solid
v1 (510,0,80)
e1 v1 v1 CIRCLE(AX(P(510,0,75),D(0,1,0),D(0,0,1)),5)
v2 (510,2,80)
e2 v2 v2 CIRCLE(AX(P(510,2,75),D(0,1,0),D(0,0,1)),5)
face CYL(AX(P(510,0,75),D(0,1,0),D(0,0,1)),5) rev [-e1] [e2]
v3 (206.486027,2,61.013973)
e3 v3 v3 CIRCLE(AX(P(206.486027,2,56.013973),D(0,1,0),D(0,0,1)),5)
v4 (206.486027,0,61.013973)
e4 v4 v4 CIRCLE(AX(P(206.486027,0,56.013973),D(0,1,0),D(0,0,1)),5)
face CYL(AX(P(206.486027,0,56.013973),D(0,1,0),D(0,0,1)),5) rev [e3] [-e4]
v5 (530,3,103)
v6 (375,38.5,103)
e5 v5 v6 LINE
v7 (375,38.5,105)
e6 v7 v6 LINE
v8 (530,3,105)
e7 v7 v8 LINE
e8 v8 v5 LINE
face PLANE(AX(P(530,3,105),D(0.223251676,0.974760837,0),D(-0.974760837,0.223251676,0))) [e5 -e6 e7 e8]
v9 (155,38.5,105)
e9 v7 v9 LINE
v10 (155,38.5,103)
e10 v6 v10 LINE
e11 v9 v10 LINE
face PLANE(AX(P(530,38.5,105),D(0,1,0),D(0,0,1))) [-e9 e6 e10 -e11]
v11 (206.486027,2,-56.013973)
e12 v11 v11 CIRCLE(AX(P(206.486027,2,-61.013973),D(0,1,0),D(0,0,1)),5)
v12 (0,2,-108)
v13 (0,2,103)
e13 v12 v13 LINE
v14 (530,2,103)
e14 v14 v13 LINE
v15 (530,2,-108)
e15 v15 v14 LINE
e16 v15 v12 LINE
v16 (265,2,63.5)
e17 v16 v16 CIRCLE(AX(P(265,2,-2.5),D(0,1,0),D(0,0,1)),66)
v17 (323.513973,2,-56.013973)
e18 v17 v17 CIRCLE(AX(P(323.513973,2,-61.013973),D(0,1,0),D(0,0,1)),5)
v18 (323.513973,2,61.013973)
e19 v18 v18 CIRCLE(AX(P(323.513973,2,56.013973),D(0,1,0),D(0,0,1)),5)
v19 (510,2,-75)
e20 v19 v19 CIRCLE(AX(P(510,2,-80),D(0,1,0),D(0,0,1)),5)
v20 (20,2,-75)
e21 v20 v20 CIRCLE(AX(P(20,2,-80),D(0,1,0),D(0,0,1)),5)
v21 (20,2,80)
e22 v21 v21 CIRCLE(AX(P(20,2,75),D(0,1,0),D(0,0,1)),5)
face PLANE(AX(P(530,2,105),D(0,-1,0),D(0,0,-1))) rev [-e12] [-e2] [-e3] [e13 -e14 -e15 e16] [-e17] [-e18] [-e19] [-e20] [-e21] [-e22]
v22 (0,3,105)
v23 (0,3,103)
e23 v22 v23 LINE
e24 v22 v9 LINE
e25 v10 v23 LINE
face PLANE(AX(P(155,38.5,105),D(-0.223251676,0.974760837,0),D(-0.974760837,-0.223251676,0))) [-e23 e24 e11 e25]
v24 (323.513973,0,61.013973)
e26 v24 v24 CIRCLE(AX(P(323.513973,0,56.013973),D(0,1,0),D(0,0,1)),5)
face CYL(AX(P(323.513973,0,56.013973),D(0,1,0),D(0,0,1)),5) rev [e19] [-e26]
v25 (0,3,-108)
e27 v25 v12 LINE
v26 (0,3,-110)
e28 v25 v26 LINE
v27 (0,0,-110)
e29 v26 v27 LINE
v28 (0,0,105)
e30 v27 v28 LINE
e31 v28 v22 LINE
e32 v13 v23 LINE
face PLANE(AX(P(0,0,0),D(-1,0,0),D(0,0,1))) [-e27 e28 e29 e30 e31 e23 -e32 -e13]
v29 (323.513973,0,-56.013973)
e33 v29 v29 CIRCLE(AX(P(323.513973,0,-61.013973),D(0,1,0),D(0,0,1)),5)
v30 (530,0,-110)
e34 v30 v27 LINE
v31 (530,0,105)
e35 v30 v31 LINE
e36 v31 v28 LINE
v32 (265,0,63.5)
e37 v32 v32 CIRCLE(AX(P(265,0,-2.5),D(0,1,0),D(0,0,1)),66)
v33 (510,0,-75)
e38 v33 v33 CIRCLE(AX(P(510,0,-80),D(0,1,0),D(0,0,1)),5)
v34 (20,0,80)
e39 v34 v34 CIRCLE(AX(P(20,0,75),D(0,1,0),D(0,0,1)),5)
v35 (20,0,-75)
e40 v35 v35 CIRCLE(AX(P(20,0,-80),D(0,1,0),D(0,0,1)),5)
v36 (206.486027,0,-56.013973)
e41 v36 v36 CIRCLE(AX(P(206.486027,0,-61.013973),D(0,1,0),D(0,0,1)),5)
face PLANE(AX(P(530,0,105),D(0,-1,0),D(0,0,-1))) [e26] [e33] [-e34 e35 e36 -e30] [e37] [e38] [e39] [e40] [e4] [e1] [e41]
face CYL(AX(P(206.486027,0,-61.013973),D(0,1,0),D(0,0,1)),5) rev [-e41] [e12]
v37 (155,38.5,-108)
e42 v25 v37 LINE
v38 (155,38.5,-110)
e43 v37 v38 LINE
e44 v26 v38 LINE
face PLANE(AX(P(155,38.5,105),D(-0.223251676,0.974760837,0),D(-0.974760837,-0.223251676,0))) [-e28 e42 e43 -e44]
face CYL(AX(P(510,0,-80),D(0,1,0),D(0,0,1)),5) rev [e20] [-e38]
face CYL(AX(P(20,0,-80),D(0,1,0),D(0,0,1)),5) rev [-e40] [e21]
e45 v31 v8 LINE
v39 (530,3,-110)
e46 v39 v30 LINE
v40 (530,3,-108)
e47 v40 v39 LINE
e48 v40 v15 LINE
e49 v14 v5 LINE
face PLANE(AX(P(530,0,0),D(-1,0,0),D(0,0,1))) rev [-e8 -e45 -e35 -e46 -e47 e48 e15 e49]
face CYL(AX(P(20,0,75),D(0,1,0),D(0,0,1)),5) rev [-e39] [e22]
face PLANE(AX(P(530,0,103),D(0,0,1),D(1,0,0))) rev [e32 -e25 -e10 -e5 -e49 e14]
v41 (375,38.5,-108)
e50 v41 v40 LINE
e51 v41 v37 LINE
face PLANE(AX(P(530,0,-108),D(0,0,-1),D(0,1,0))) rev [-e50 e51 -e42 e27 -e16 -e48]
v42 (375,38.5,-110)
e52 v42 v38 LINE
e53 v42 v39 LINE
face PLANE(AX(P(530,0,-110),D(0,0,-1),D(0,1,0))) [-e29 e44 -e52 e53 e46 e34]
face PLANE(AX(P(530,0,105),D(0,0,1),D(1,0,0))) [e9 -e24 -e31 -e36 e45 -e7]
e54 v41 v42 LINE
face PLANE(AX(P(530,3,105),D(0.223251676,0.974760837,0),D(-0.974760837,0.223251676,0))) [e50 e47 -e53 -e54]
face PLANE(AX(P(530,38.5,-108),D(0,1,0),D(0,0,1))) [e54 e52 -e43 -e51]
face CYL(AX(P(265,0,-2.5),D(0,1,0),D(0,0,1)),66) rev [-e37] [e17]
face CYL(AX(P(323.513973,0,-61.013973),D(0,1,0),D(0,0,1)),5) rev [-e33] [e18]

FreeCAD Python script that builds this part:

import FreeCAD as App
import Part
import Sketcher

V = App.Vector
Q = App.Units.Quantity

doc = App.newDocument("Part")
params = doc.addObject("Spreadsheet::Sheet", "Params")
for row, (alias, value) in enumerate([
    ("sketch1_height", "215 mm"),
    ("sketch1_height2", "2 mm"),
    ("sketch1_width", "38.5 mm"),
    ("sketch1_width2", "36.5 mm"),
    ("pad1_length", "530 mm"),
    ("sketch2_width", "530 mm"),
    ("sketch2_width2", "220 mm"),
    ("sketch2_height", "3 mm"),
    ("sketch3_diameter", "10 mm"),
    ("sketch3_diameter2", "132 mm"),
], start=1):
    params.set(f"A{row}", alias)
    params.set(f"B{row}", "=" + value)
    params.setAlias(f"B{row}", alias)

body = doc.addObject("PartDesign::Body", "Body")

# Sketch on YZ plane
sketch1 = body.newObject("Sketcher::SketchObject", "Sketch")
sketch1.AttachmentSupport = (doc.getObject("YZ_Plane"), [""])
sketch1.MapMode = "FlatFace"
sketch1.addGeometry([
    Part.LineSegment(V(38.5, 105, 0), V(0, 105, 0)),  # 0
    Part.LineSegment(V(0, 105, 0), V(0, -110, 0)),  # 1
    Part.LineSegment(V(0, -110, 0), V(38.5, -110, 0)),  # 2
    Part.LineSegment(V(38.5, -110, 0), V(38.5, -108, 0)),  # 3
    Part.LineSegment(V(38.5, -108, 0), V(2, -108, 0)),  # 4
    Part.LineSegment(V(2, -108, 0), V(2, 103, 0)),  # 5
    Part.LineSegment(V(2, 103, 0), V(38.5, 103, 0)),  # 6
    Part.LineSegment(V(38.5, 103, 0), V(38.5, 105, 0)),  # 7
], False)
sketch1.addConstraint([
    Sketcher.Constraint("Coincident", 0, 2, 1, 1),
    Sketcher.Constraint("Coincident", 1, 2, 2, 1),
    Sketcher.Constraint("Coincident", 2, 2, 3, 1),
    Sketcher.Constraint("Coincident", 3, 2, 4, 1),
    Sketcher.Constraint("Coincident", 4, 2, 5, 1),
    Sketcher.Constraint("Coincident", 5, 2, 6, 1),
    Sketcher.Constraint("Coincident", 6, 2, 7, 1),
    Sketcher.Constraint("Coincident", 7, 2, 0, 1),
    Sketcher.Constraint("Horizontal", 0),
    Sketcher.Constraint("Vertical", 1),
    Sketcher.Constraint("Horizontal", 2),
    Sketcher.Constraint("Vertical", 3),
    Sketcher.Constraint("Horizontal", 4),
    Sketcher.Constraint("Vertical", 5),
    Sketcher.Constraint("Horizontal", 6),
    Sketcher.Constraint("Vertical", 7),
    Sketcher.Constraint("PointOnObject", 0, 2, -2),
    Sketcher.Constraint("Vertical", 3, 2, 6, 2),
    Sketcher.Constraint("Equal", 3, 7),
    Sketcher.Constraint("DistanceY", 1, 2, 1, 1, Q("215 mm")),
    Sketcher.Constraint("DistanceY", 3, 1, 3, 2, Q("2 mm")),
    Sketcher.Constraint("DistanceX", 0, 2, 0, 1, Q("38.5 mm")),
    Sketcher.Constraint("DistanceX", 4, 2, 4, 1, Q("36.5 mm")),
    Sketcher.Constraint("DistanceY", -1, 1, 0, 2, Q("105 mm")),
])
sketch1.setExpression("Constraints[19]", "Params.sketch1_height")
sketch1.setExpression("Constraints[20]", "Params.sketch1_height2")
sketch1.setExpression("Constraints[21]", "Params.sketch1_width")
sketch1.setExpression("Constraints[22]", "Params.sketch1_width2")
pad1 = body.newObject("PartDesign::Pad", "Pad")
pad1.Profile = sketch1
pad1.setExpression("Length", "Params.pad1_length")

# Sketch on XY plane
sketch2 = body.newObject("Sketcher::SketchObject", "Sketch001")
sketch2.AttachmentSupport = (doc.getObject("XY_Plane"), [""])
sketch2.MapMode = "FlatFace"
sketch2.AttachmentOffset = App.Placement(V(0, 0, -110), App.Rotation())
sketch2.addGeometry([
    Part.LineSegment(V(588.324, 96.824, 0), V(588.324, -58.324, 0)),  # 0
    Part.LineSegment(V(588.324, -58.324, 0), V(-58.324, -58.324, 0)),  # 1
    Part.LineSegment(V(-58.324, -58.324, 0), V(-58.324, 96.824, 0)),  # 2
    Part.LineSegment(V(-58.324, 96.824, 0), V(588.324, 96.824, 0)),  # 3
    Part.LineSegment(V(0, 0, 0), V(530, 0, 0)),  # 4
    Part.LineSegment(V(530, 0, 0), V(530, 3, 0)),  # 5
    Part.LineSegment(V(530, 3, 0), V(375, 38.5, 0)),  # 6
    Part.LineSegment(V(375, 38.5, 0), V(155, 38.5, 0)),  # 7
    Part.LineSegment(V(155, 38.5, 0), V(0, 3, 0)),  # 8
    Part.LineSegment(V(0, 3, 0), V(0, 0, 0)),  # 9
], False)
sketch2.addConstraint([
    Sketcher.Constraint("Coincident", 0, 2, 1, 1),
    Sketcher.Constraint("Coincident", 1, 2, 2, 1),
    Sketcher.Constraint("Coincident", 2, 2, 3, 1),
    Sketcher.Constraint("Coincident", 3, 2, 0, 1),
    Sketcher.Constraint("Coincident", 4, 2, 5, 1),
    Sketcher.Constraint("Coincident", 5, 2, 6, 1),
    Sketcher.Constraint("Coincident", 6, 2, 7, 1),
    Sketcher.Constraint("Coincident", 7, 2, 8, 1),
    Sketcher.Constraint("Coincident", 8, 2, 9, 1),
    Sketcher.Constraint("Coincident", 9, 2, 4, 1),
    Sketcher.Constraint("Vertical", 0),
    Sketcher.Constraint("Horizontal", 1),
    Sketcher.Constraint("Vertical", 2),
    Sketcher.Constraint("Horizontal", 3),
    Sketcher.Constraint("Horizontal", 4),
    Sketcher.Constraint("Vertical", 5),
    Sketcher.Constraint("Horizontal", 7),
    Sketcher.Constraint("Vertical", 9),
    Sketcher.Constraint("Coincident", 9, 2, -1, 1),
    Sketcher.Constraint("Horizontal", 5, 2, 8, 2),
    Sketcher.Constraint("Equal", 6, 8),
    Sketcher.Constraint("DistanceX", 4, 1, 4, 2, Q("530 mm")),
    Sketcher.Constraint("DistanceX", 7, 2, 7, 1, Q("220 mm")),
    Sketcher.Constraint("DistanceY", 5, 1, 5, 2, Q("3 mm")),
    Sketcher.Constraint("DistanceY", -1, 1, 6, 2, Q("38.5 mm")),
    Sketcher.Constraint("DistanceX", 1, 2, 1, 1, Q("646.648 mm")),
    Sketcher.Constraint("DistanceY", 0, 2, 0, 1, Q("155.148 mm")),
    Sketcher.Constraint("DistanceX", -1, 1, 0, 2, Q("588.324 mm")),
    Sketcher.Constraint("DistanceY", 0, 2, -1, 1, Q("58.324 mm")),
])
sketch2.setExpression("Constraints[21]", "Params.sketch2_width")
sketch2.setExpression("Constraints[22]", "Params.sketch2_width2")
sketch2.setExpression("Constraints[23]", "Params.sketch2_height")
pocket1 = body.newObject("PartDesign::Pocket", "Pocket")
pocket1.Profile = sketch2
pocket1.Type = "ThroughAll"
pocket1.Reversed = True

# Sketch on XZ plane
sketch3 = body.newObject("Sketcher::SketchObject", "Sketch002")
sketch3.AttachmentSupport = (doc.getObject("XZ_Plane"), [""])
sketch3.MapMode = "FlatFace"
sketch3.AttachmentOffset = App.Placement(V(0, 0, -2), App.Rotation())
sketch3.addGeometry([
    Part.Circle(V(20, -80, 0), V(0, 0, 1), 5),  # 0
    Part.Circle(V(20, 75, 0), V(0, 0, 1), 5),  # 1
    Part.Circle(V(510, -80, 0), V(0, 0, 1), 5),  # 2
    Part.Circle(V(510, 75, 0), V(0, 0, 1), 5),  # 3
    Part.Circle(V(265, -2.5, 0), V(0, 0, 1), 66),  # 4
    Part.Circle(V(323.513973, -61.013973, 0), V(0, 0, 1), 5),  # 5
    Part.Circle(V(323.513973, 56.013973, 0), V(0, 0, 1), 5),  # 6
    Part.Circle(V(206.486027, 56.013973, 0), V(0, 0, 1), 5),  # 7
    Part.Circle(V(206.486027, -61.013973, 0), V(0, 0, 1), 5),  # 8
], False)
sketch3.addConstraint([
    Sketcher.Constraint("Equal", 0, 1),
    Sketcher.Constraint("Equal", 1, 2),
    Sketcher.Constraint("Equal", 2, 3),
    Sketcher.Constraint("Equal", 3, 5),
    Sketcher.Constraint("Equal", 5, 6),
    Sketcher.Constraint("Equal", 6, 7),
    Sketcher.Constraint("Equal", 7, 8),
    Sketcher.Constraint("Horizontal", 0, 3, 2, 3),
    Sketcher.Constraint("Horizontal", 1, 3, 3, 3),
    Sketcher.Constraint("Horizontal", 6, 3, 7, 3),
    Sketcher.Constraint("Horizontal", 5, 3, 8, 3),
    Sketcher.Constraint("Vertical", 0, 3, 1, 3),
    Sketcher.Constraint("Vertical", 2, 3, 3, 3),
    Sketcher.Constraint("Vertical", 5, 3, 6, 3),
    Sketcher.Constraint("Vertical", 7, 3, 8, 3),
    Sketcher.Constraint("Diameter", 0, Q("10 mm")),
    Sketcher.Constraint("Diameter", 4, Q("132 mm")),
    Sketcher.Constraint("DistanceX", -1, 1, 0, 3, Q("20 mm")),
    Sketcher.Constraint("DistanceY", 0, 3, -1, 1, Q("80 mm")),
    Sketcher.Constraint("DistanceY", -1, 1, 1, 3, Q("75 mm")),
    Sketcher.Constraint("DistanceX", -1, 1, 2, 3, Q("510 mm")),
    Sketcher.Constraint("DistanceX", -1, 1, 4, 3, Q("265 mm")),
    Sketcher.Constraint("DistanceY", 4, 3, -1, 1, Q("2.5 mm")),
    Sketcher.Constraint("DistanceX", -1, 1, 5, 3, Q("323.513973 mm")),
    Sketcher.Constraint("DistanceY", 5, 3, -1, 1, Q("61.013973 mm")),
    Sketcher.Constraint("DistanceY", -1, 1, 6, 3, Q("56.013973 mm")),
    Sketcher.Constraint("DistanceX", -1, 1, 7, 3, Q("206.486027 mm")),
])
sketch3.setExpression("Constraints[15]", "Params.sketch3_diameter")
sketch3.setExpression("Constraints[16]", "Params.sketch3_diameter2")
pocket2 = body.newObject("PartDesign::Pocket", "Pocket001")
pocket2.Profile = sketch3
pocket2.Type = "ThroughAll"
pocket2.Reversed = True

doc.recompute()
